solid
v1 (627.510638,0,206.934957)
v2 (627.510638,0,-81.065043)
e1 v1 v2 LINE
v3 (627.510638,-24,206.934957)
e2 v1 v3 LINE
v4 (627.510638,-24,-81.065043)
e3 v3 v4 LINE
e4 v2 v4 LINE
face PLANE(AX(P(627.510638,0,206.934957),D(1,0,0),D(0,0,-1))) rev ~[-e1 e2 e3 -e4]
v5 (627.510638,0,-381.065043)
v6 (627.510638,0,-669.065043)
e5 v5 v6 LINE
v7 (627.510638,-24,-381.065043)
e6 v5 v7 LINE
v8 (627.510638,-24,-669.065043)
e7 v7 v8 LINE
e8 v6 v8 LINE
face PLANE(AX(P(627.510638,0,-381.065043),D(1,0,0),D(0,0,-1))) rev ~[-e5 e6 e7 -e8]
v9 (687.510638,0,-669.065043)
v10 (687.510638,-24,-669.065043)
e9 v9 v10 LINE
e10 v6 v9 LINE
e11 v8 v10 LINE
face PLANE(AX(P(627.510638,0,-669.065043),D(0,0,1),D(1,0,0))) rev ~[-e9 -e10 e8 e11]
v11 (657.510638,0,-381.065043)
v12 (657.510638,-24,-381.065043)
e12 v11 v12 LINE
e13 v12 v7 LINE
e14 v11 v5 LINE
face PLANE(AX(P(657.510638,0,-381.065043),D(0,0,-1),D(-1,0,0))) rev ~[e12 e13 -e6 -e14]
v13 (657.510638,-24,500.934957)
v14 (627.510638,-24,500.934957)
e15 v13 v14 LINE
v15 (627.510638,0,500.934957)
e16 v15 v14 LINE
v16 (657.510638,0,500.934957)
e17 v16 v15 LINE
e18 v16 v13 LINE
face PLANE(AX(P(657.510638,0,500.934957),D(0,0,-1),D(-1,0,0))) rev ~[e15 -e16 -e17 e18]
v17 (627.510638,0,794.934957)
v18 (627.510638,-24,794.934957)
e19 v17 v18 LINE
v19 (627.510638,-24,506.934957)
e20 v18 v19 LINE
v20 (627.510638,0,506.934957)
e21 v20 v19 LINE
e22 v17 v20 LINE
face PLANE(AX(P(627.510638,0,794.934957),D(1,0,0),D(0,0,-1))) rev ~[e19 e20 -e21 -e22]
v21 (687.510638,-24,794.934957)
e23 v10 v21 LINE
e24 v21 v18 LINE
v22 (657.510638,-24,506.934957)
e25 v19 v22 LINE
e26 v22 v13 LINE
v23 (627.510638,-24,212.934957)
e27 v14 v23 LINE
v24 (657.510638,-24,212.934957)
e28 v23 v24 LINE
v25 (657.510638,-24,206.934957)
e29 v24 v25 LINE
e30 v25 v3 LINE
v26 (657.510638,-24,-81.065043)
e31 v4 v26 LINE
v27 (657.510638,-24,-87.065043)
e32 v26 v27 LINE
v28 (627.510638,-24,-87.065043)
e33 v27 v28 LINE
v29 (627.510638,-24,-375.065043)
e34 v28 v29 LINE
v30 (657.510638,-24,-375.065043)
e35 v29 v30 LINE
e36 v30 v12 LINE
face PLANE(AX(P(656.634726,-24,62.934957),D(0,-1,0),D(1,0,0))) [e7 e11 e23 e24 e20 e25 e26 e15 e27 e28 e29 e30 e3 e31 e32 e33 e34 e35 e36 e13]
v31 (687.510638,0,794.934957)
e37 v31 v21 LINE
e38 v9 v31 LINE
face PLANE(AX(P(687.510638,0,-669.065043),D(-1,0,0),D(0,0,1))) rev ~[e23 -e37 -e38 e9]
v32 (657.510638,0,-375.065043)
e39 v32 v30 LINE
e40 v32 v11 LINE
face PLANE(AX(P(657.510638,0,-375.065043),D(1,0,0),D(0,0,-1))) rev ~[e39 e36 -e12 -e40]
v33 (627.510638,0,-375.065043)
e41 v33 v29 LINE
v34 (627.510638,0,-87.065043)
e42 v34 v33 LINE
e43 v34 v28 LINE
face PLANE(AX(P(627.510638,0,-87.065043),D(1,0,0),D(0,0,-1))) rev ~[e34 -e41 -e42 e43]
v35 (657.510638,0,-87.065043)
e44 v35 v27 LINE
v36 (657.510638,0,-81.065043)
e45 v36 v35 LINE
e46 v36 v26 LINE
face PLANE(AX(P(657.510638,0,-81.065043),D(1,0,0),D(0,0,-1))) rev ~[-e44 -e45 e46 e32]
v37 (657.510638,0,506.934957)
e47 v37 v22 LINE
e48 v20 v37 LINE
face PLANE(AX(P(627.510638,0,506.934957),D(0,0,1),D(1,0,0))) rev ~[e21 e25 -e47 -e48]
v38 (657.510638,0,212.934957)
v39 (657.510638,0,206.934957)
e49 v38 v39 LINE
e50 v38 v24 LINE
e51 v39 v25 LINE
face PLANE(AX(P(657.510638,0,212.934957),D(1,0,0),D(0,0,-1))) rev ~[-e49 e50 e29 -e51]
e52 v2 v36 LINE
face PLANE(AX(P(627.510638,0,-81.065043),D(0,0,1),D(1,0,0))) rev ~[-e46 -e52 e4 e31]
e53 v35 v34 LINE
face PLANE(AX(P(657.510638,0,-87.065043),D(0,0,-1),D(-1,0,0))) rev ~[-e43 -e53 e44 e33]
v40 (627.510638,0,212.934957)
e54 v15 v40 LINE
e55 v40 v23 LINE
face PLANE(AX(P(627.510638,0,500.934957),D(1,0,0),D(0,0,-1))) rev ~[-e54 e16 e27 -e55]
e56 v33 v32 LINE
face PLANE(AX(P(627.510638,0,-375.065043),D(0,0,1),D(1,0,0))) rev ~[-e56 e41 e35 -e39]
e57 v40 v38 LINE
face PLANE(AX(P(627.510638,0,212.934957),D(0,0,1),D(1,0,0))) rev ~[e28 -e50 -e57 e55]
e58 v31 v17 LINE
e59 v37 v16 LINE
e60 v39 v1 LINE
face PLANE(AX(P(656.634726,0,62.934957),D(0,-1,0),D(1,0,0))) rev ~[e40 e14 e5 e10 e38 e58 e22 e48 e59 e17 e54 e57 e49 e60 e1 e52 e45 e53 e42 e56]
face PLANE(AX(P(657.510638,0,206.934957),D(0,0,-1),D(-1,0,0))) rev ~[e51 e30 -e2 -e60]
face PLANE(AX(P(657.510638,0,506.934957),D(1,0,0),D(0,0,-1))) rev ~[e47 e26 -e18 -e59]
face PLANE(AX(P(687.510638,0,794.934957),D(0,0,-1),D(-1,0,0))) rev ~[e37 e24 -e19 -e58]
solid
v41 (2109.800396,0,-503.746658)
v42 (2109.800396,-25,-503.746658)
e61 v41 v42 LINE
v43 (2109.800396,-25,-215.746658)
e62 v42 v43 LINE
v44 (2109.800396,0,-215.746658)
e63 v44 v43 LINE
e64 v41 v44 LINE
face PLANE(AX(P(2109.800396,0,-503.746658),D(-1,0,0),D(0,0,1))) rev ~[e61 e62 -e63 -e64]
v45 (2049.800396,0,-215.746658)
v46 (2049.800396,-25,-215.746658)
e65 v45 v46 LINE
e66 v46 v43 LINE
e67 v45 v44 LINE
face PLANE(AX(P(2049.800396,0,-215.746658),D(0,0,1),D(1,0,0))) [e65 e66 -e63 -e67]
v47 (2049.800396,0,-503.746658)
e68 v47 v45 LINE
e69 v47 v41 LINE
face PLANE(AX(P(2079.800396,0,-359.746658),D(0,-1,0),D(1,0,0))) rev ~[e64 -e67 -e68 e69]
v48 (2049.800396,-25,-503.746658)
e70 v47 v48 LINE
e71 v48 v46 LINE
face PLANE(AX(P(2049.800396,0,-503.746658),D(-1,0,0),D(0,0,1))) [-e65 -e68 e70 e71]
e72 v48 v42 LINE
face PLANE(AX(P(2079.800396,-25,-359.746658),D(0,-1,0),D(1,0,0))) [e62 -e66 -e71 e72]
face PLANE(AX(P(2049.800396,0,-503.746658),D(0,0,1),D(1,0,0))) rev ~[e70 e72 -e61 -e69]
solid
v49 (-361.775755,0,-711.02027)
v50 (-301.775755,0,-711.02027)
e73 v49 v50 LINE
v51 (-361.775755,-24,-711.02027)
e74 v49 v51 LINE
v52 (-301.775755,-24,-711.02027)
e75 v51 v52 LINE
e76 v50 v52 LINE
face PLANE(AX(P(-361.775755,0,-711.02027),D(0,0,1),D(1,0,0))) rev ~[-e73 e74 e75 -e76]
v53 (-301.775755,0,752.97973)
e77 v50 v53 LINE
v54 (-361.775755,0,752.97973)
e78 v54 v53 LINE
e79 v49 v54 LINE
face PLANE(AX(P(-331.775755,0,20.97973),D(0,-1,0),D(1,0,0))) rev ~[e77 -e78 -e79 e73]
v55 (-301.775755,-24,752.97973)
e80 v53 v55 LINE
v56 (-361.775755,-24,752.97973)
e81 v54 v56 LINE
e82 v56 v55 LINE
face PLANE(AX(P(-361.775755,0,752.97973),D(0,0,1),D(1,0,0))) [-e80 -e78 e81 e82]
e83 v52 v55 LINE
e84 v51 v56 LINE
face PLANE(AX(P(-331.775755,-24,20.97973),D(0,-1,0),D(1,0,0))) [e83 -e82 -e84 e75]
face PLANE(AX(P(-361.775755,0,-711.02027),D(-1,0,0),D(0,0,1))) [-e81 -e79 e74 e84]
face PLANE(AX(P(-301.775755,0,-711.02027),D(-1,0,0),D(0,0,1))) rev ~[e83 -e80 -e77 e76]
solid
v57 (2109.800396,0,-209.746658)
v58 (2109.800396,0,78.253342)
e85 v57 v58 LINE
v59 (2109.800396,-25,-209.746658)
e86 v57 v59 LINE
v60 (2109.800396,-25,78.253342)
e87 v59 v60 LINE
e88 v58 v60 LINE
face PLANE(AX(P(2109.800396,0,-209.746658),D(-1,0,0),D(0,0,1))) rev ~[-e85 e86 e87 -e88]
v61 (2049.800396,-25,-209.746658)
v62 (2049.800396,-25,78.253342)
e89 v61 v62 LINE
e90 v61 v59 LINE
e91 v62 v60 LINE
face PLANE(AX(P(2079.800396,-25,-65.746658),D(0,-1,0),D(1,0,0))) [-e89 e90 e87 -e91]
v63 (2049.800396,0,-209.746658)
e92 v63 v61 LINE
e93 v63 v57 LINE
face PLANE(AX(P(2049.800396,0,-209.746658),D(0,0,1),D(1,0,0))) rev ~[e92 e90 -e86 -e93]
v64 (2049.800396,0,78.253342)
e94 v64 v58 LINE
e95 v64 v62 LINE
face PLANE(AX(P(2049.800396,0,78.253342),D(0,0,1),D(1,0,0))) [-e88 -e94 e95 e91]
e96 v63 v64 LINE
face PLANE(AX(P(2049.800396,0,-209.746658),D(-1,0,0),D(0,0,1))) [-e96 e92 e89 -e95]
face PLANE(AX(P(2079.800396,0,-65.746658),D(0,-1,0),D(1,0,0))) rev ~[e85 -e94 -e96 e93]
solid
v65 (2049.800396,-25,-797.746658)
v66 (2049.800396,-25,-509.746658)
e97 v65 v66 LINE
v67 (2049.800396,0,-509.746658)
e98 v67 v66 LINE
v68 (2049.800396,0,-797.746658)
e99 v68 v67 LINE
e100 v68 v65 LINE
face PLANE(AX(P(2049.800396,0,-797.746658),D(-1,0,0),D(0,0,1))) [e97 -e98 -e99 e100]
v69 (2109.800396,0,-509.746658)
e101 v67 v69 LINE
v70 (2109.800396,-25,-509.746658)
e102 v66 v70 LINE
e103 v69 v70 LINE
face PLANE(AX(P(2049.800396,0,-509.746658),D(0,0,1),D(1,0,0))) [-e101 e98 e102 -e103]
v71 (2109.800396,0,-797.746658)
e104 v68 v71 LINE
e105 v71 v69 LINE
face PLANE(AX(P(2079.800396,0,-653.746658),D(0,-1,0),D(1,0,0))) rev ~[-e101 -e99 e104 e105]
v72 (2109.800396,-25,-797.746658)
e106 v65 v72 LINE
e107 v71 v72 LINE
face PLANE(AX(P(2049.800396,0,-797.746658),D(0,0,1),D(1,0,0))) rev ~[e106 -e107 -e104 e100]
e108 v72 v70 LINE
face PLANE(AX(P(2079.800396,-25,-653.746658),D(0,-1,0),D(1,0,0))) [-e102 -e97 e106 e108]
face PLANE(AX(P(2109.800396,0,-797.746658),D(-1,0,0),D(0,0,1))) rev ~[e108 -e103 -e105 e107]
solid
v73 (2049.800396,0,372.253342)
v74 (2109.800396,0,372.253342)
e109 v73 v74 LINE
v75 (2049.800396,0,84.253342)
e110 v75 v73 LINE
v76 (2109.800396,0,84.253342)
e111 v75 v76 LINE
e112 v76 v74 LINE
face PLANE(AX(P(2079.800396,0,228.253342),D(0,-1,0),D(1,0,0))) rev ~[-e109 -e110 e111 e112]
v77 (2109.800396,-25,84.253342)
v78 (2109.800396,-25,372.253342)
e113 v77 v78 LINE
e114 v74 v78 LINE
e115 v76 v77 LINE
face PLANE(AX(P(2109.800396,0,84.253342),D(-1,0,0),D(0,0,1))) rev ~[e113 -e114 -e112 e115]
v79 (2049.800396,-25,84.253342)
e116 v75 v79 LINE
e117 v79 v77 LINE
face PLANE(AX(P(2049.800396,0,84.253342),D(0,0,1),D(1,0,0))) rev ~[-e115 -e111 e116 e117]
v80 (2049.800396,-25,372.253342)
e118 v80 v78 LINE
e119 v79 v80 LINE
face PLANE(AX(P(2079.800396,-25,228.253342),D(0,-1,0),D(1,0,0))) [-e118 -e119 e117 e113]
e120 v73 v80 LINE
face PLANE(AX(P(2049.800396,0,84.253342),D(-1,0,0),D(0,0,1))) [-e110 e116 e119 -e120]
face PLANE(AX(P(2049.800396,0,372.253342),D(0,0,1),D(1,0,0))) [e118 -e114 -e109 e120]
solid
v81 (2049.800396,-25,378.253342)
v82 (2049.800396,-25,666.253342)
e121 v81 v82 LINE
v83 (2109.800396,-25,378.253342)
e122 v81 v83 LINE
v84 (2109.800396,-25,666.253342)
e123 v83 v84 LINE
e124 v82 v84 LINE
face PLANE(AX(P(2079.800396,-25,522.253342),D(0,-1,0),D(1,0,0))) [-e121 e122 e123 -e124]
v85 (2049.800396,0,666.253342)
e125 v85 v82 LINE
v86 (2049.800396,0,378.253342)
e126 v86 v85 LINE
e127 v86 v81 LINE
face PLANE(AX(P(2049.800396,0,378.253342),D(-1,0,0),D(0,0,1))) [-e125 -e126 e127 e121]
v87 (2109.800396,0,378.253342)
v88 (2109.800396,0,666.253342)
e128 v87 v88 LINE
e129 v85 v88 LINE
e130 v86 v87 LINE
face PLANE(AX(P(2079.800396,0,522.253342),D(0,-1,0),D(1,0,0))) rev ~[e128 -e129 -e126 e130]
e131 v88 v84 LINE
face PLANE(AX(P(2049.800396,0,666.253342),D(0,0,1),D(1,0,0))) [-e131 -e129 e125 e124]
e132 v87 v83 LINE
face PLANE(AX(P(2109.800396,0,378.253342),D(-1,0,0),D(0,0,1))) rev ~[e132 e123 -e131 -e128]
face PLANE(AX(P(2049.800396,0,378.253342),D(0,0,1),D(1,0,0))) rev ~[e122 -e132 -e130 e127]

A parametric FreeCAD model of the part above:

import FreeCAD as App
import Part
import Sketcher


def add_polygon(sketch, points):
    """Adds a closed chain of lines whose ends are joined by coincident constraints."""
    first, n = sketch.GeometryCount, len(points)
    for a, b in zip(points, points[1:] + points[:1]):
        sketch.addGeometry(Part.LineSegment(App.Vector(*a, 0), App.Vector(*b, 0)), False)
    for i in range(n):
        sketch.addConstraint(Sketcher.Constraint("Coincident", first + i, 2, first + (i + 1) % n, 1))

doc = App.newDocument("Part")
body = doc.addObject("PartDesign::Body", "Body")

# Sketch on XZ plane
sketch1 = body.newObject("Sketcher::SketchObject", "Sketch")
sketch1.AttachmentSupport = (doc.getObject("XZ_Plane"), [""])
sketch1.MapMode = "FlatFace"
add_polygon(sketch1, [(-362, 753), (-362, -711), (-302, -711), (-302, 753)])  # lines 0-3
sketch1.addConstraint(Sketcher.Constraint("Vertical", 0))
sketch1.addConstraint(Sketcher.Constraint("Horizontal", 1))
sketch1.addConstraint(Sketcher.Constraint("Vertical", 2))
sketch1.addConstraint(Sketcher.Constraint("Horizontal", 3))
sketch1.addConstraint(Sketcher.Constraint("DistanceX", 1, 1, 1, 2, 60.0))
sketch1.addConstraint(Sketcher.Constraint("DistanceY", 0, 2, 0, 1, 1464.0))
sketch1.addConstraint(Sketcher.Constraint("DistanceY", 0, 2, -1, 1, 711.02027))
sketch1.addConstraint(Sketcher.Constraint("DistanceX", 0, 2, -1, 1, 361.775755))
pad1 = body.newObject("PartDesign::Pad", "Pad")
pad1.Profile = sketch1
pad1.Length = 24
body2 = doc.addObject("PartDesign::Body", "Body001")
body2.AllowCompound = True

# Sketch on XZ plane
sketch2 = body2.newObject("Sketcher::SketchObject", "Sketch001")
sketch2.AttachmentSupport = (doc.getObject("XZ_Plane001"), [""])
sketch2.MapMode = "FlatFace"
add_polygon(sketch2, [(2050, 666), (2050, 378), (2110, 378), (2110, 666)])  # lines 0-3
add_polygon(sketch2, [(2050, 372), (2050, 84), (2110, 84), (2110, 372)])  # lines 4-7
add_polygon(sketch2, [(2050, 78), (2050, -210), (2110, -210), (2110, 78)])  # lines 8-11
add_polygon(sketch2, [(2050, -216), (2050, -504), (2110, -504), (2110, -216)])  # lines 12-15
add_polygon(sketch2, [(2050, -510), (2050, -798), (2110, -798), (2110, -510)])  # lines 16-19
sketch2.addConstraint(Sketcher.Constraint("Vertical", 0))
sketch2.addConstraint(Sketcher.Constraint("Horizontal", 1))
sketch2.addConstraint(Sketcher.Constraint("Vertical", 2))
sketch2.addConstraint(Sketcher.Constraint("Horizontal", 3))
sketch2.addConstraint(Sketcher.Constraint("Vertical", 4))
sketch2.addConstraint(Sketcher.Constraint("Horizontal", 5))
sketch2.addConstraint(Sketcher.Constraint("Vertical", 6))
sketch2.addConstraint(Sketcher.Constraint("Horizontal", 7))
sketch2.addConstraint(Sketcher.Constraint("Vertical", 8))
sketch2.addConstraint(Sketcher.Constraint("Horizontal", 9))
sketch2.addConstraint(Sketcher.Constraint("Vertical", 10))
sketch2.addConstraint(Sketcher.Constraint("Horizontal", 11))
sketch2.addConstraint(Sketcher.Constraint("Vertical", 12))
sketch2.addConstraint(Sketcher.Constraint("Horizontal", 13))
sketch2.addConstraint(Sketcher.Constraint("Vertical", 14))
sketch2.addConstraint(Sketcher.Constraint("Horizontal", 15))
sketch2.addConstraint(Sketcher.Constraint("Vertical", 16))
sketch2.addConstraint(Sketcher.Constraint("Horizontal", 17))
sketch2.addConstraint(Sketcher.Constraint("Vertical", 18))
sketch2.addConstraint(Sketcher.Constraint("Horizontal", 19))
sketch2.addConstraint(Sketcher.Constraint("Vertical", 3, 2, 4, 2))
sketch2.addConstraint(Sketcher.Constraint("Vertical", 2, 2, 5, 2))
sketch2.addConstraint(Sketcher.Constraint("Vertical", 7, 2, 8, 2))
sketch2.addConstraint(Sketcher.Constraint("Vertical", 6, 2, 9, 2))
sketch2.addConstraint(Sketcher.Constraint("Vertical", 11, 2, 12, 2))
sketch2.addConstraint(Sketcher.Constraint("Vertical", 10, 2, 13, 2))
sketch2.addConstraint(Sketcher.Constraint("Vertical", 15, 2, 16, 2))
sketch2.addConstraint(Sketcher.Constraint("Vertical", 14, 2, 17, 2))
sketch2.addConstraint(Sketcher.Constraint("Equal", 2, 4))
sketch2.addConstraint(Sketcher.Constraint("Equal", 6, 8))
sketch2.addConstraint(Sketcher.Constraint("Equal", 10, 12))
sketch2.addConstraint(Sketcher.Constraint("Equal", 14, 16))
sketch2.addConstraint(Sketcher.Constraint("DistanceX", 1, 1, 1, 2, 60.0))
sketch2.addConstraint(Sketcher.Constraint("DistanceY", 0, 2, 0, 1, 288.0))
sketch2.addConstraint(Sketcher.Constraint("DistanceY", 4, 2, 0, 2, 294.0))
sketch2.addConstraint(Sketcher.Constraint("DistanceY", 8, 2, 4, 2, 294.0))
sketch2.addConstraint(Sketcher.Constraint("DistanceY", 12, 2, 8, 2, 294.0))
sketch2.addConstraint(Sketcher.Constraint("DistanceY", 16, 2, 12, 2, 294.0))
sketch2.addConstraint(Sketcher.Constraint("DistanceY", -1, 1, 0, 2, 378.253342))
sketch2.addConstraint(Sketcher.Constraint("DistanceX", -1, 1, 0, 2, 2049.800396))
pad2 = body2.newObject("PartDesign::Pad", "Pad001")
pad2.Profile = sketch2
pad2.Length = 25
body3 = doc.addObject("PartDesign::Body", "Body002")

# Sketch on XZ plane
sketch3 = body3.newObject("Sketcher::SketchObject", "Sketch002")
sketch3.AttachmentSupport = (doc.getObject("XZ_Plane002"), [""])
sketch3.MapMode = "FlatFace"
add_polygon(sketch3, [(628, 795), (628, 507), (658, 507), (658, 501), (628, 501), (628, 213), (658, 213), (658, 207), (628, 207), (628, -81), (658, -81), (658, -87), (628, -87), (628, -375), (658, -375), (658, -381), (628, -381), (628, -669), (688, -669), (688, 795)])  # lines 0-19
sketch3.addConstraint(Sketcher.Constraint("Vertical", 0))
sketch3.addConstraint(Sketcher.Constraint("Horizontal", 1))
sketch3.addConstraint(Sketcher.Constraint("Vertical", 2))
sketch3.addConstraint(Sketcher.Constraint("Horizontal", 3))
sketch3.addConstraint(Sketcher.Constraint("Vertical", 4))
sketch3.addConstraint(Sketcher.Constraint("Horizontal", 5))
sketch3.addConstraint(Sketcher.Constraint("Vertical", 6))
sketch3.addConstraint(Sketcher.Constraint("Horizontal", 7))
sketch3.addConstraint(Sketcher.Constraint("Vertical", 8))
sketch3.addConstraint(Sketcher.Constraint("Horizontal", 9))
sketch3.addConstraint(Sketcher.Constraint("Vertical", 10))
sketch3.addConstraint(Sketcher.Constraint("Horizontal", 11))
sketch3.addConstraint(Sketcher.Constraint("Vertical", 12))
sketch3.addConstraint(Sketcher.Constraint("Horizontal", 13))
sketch3.addConstraint(Sketcher.Constraint("Vertical", 14))
sketch3.addConstraint(Sketcher.Constraint("Horizontal", 15))
sketch3.addConstraint(Sketcher.Constraint("Vertical", 16))
sketch3.addConstraint(Sketcher.Constraint("Horizontal", 17))
sketch3.addConstraint(Sketcher.Constraint("Vertical", 18))
sketch3.addConstraint(Sketcher.Constraint("Horizontal", 19))
sketch3.addConstraint(Sketcher.Constraint("Vertical", 0, 2, 3, 2))
sketch3.addConstraint(Sketcher.Constraint("Vertical", 2, 2, 5, 2))
sketch3.addConstraint(Sketcher.Constraint("Vertical", 4, 2, 7, 2))
sketch3.addConstraint(Sketcher.Constraint("Vertical", 6, 2, 9, 2))
sketch3.addConstraint(Sketcher.Constraint("Vertical", 8, 2, 11, 2))
sketch3.addConstraint(Sketcher.Constraint("Vertical", 10, 2, 13, 2))
sketch3.addConstraint(Sketcher.Constraint("Vertical", 12, 2, 15, 2))
sketch3.addConstraint(Sketcher.Constraint("Equal", 0, 4))
sketch3.addConstraint(Sketcher.Constraint("Equal", 2, 6))
sketch3.addConstraint(Sketcher.Constraint("Equal", 4, 8))
sketch3.addConstraint(Sketcher.Constraint("Equal", 6, 10))
sketch3.addConstraint(Sketcher.Constraint("Equal", 8, 12))
sketch3.addConstraint(Sketcher.Constraint("Equal", 10, 14))
sketch3.addConstraint(Sketcher.Constraint("Equal", 12, 16))
sketch3.addConstraint(Sketcher.Constraint("DistanceX", 1, 1, 1, 2, 30.0))
sketch3.addConstraint(Sketcher.Constraint("DistanceX", 17, 1, 17, 2, 60.0))
sketch3.addConstraint(Sketcher.Constraint("DistanceY", 0, 2, 0, 1, 288.0))
sketch3.addConstraint(Sketcher.Constraint("DistanceY", 2, 2, 2, 1, 6.0))
sketch3.addConstraint(Sketcher.Constraint("DistanceX", -1, 1, 0, 2, 627.510638))
sketch3.addConstraint(Sketcher.Constraint("DistanceY", -1, 1, 0, 2, 506.934957))
pad3 = body3.newObject("PartDesign::Pad", "Pad002")
pad3.Profile = sketch3
pad3.Length = 24

doc.recompute()
